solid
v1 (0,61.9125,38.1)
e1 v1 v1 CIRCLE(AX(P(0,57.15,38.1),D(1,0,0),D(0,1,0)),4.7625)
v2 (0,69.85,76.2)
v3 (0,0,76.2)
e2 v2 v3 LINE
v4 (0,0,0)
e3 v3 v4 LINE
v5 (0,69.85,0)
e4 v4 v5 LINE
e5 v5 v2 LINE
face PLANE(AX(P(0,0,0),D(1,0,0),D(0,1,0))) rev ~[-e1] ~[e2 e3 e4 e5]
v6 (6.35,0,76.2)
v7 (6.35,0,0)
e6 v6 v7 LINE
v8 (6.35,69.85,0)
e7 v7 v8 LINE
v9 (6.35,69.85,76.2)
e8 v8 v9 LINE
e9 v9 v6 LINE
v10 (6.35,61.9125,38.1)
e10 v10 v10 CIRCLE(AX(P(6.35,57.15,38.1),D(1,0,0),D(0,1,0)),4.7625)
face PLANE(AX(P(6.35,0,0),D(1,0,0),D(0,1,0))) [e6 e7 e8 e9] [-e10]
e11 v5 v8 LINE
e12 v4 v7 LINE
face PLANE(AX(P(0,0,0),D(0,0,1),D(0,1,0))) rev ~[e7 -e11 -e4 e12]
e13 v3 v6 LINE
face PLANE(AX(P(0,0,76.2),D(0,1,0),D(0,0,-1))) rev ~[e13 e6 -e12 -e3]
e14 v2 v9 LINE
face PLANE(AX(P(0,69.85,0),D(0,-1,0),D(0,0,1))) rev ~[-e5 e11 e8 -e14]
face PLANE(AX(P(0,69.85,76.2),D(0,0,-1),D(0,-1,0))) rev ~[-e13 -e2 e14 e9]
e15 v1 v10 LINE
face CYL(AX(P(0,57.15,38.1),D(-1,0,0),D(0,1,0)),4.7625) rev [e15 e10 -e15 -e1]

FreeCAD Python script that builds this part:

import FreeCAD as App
import Part
import Sketcher
from FreeCAD import Vector
Q = App.Units.Quantity

doc = App.newDocument("Part")
body = doc.addObject("PartDesign::Body", "Body")

# Sketch on YZ plane
sketch1 = body.newObject("Sketcher::SketchObject", "Sketch")
sketch1.AttachmentSupport = (doc.getObject("YZ_Plane"), [""])
sketch1.MapMode = "FlatFace"
sketch1.addGeometry([
    Part.LineSegment(Vector(0, 76.2, 0), Vector(0, 0, 0)),  # 0
    Part.LineSegment(Vector(0, 0, 0), Vector(69.85, 0, 0)),  # 1
    Part.LineSegment(Vector(69.85, 0, 0), Vector(69.85, 76.2, 0)),  # 2
    Part.LineSegment(Vector(69.85, 76.2, 0), Vector(0, 76.2, 0)),  # 3
    Part.Circle(Vector(57.15, 38.1, 0), Vector(0, 0, 1), 4.7625),  # 4
], False)
sketch1.addConstraint([
    Sketcher.Constraint("Coincident", 0, 2, 1, 1),
    Sketcher.Constraint("Coincident", 1, 2, 2, 1),
    Sketcher.Constraint("Coincident", 2, 2, 3, 1),
    Sketcher.Constraint("Coincident", 3, 2, 0, 1),
    Sketcher.Constraint("Vertical", 0),
    Sketcher.Constraint("Horizontal", 1),
    Sketcher.Constraint("Vertical", 2),
    Sketcher.Constraint("Horizontal", 3),
    Sketcher.Constraint("Coincident", 0, 2, -1, 1),
    Sketcher.Constraint("DistanceY", 0, 2, 0, 1, Q("3 in")),
    Sketcher.Constraint("Diameter", 4, Q("0.375 in")),
    Sketcher.Constraint("DistanceX", 1, 1, 1, 2, Q("2.75 in")),
    Sketcher.Constraint("DistanceY", -1, 1, 4, 3, Q("1.5 in")),
    Sketcher.Constraint("DistanceX", 4, 3, 1, 2, Q("0.5 in")),
])
pad1 = body.newObject("PartDesign::Pad", "Pad")
pad1.Profile = sketch1
pad1.Length = Q("0.25 in")

doc.recompute()
